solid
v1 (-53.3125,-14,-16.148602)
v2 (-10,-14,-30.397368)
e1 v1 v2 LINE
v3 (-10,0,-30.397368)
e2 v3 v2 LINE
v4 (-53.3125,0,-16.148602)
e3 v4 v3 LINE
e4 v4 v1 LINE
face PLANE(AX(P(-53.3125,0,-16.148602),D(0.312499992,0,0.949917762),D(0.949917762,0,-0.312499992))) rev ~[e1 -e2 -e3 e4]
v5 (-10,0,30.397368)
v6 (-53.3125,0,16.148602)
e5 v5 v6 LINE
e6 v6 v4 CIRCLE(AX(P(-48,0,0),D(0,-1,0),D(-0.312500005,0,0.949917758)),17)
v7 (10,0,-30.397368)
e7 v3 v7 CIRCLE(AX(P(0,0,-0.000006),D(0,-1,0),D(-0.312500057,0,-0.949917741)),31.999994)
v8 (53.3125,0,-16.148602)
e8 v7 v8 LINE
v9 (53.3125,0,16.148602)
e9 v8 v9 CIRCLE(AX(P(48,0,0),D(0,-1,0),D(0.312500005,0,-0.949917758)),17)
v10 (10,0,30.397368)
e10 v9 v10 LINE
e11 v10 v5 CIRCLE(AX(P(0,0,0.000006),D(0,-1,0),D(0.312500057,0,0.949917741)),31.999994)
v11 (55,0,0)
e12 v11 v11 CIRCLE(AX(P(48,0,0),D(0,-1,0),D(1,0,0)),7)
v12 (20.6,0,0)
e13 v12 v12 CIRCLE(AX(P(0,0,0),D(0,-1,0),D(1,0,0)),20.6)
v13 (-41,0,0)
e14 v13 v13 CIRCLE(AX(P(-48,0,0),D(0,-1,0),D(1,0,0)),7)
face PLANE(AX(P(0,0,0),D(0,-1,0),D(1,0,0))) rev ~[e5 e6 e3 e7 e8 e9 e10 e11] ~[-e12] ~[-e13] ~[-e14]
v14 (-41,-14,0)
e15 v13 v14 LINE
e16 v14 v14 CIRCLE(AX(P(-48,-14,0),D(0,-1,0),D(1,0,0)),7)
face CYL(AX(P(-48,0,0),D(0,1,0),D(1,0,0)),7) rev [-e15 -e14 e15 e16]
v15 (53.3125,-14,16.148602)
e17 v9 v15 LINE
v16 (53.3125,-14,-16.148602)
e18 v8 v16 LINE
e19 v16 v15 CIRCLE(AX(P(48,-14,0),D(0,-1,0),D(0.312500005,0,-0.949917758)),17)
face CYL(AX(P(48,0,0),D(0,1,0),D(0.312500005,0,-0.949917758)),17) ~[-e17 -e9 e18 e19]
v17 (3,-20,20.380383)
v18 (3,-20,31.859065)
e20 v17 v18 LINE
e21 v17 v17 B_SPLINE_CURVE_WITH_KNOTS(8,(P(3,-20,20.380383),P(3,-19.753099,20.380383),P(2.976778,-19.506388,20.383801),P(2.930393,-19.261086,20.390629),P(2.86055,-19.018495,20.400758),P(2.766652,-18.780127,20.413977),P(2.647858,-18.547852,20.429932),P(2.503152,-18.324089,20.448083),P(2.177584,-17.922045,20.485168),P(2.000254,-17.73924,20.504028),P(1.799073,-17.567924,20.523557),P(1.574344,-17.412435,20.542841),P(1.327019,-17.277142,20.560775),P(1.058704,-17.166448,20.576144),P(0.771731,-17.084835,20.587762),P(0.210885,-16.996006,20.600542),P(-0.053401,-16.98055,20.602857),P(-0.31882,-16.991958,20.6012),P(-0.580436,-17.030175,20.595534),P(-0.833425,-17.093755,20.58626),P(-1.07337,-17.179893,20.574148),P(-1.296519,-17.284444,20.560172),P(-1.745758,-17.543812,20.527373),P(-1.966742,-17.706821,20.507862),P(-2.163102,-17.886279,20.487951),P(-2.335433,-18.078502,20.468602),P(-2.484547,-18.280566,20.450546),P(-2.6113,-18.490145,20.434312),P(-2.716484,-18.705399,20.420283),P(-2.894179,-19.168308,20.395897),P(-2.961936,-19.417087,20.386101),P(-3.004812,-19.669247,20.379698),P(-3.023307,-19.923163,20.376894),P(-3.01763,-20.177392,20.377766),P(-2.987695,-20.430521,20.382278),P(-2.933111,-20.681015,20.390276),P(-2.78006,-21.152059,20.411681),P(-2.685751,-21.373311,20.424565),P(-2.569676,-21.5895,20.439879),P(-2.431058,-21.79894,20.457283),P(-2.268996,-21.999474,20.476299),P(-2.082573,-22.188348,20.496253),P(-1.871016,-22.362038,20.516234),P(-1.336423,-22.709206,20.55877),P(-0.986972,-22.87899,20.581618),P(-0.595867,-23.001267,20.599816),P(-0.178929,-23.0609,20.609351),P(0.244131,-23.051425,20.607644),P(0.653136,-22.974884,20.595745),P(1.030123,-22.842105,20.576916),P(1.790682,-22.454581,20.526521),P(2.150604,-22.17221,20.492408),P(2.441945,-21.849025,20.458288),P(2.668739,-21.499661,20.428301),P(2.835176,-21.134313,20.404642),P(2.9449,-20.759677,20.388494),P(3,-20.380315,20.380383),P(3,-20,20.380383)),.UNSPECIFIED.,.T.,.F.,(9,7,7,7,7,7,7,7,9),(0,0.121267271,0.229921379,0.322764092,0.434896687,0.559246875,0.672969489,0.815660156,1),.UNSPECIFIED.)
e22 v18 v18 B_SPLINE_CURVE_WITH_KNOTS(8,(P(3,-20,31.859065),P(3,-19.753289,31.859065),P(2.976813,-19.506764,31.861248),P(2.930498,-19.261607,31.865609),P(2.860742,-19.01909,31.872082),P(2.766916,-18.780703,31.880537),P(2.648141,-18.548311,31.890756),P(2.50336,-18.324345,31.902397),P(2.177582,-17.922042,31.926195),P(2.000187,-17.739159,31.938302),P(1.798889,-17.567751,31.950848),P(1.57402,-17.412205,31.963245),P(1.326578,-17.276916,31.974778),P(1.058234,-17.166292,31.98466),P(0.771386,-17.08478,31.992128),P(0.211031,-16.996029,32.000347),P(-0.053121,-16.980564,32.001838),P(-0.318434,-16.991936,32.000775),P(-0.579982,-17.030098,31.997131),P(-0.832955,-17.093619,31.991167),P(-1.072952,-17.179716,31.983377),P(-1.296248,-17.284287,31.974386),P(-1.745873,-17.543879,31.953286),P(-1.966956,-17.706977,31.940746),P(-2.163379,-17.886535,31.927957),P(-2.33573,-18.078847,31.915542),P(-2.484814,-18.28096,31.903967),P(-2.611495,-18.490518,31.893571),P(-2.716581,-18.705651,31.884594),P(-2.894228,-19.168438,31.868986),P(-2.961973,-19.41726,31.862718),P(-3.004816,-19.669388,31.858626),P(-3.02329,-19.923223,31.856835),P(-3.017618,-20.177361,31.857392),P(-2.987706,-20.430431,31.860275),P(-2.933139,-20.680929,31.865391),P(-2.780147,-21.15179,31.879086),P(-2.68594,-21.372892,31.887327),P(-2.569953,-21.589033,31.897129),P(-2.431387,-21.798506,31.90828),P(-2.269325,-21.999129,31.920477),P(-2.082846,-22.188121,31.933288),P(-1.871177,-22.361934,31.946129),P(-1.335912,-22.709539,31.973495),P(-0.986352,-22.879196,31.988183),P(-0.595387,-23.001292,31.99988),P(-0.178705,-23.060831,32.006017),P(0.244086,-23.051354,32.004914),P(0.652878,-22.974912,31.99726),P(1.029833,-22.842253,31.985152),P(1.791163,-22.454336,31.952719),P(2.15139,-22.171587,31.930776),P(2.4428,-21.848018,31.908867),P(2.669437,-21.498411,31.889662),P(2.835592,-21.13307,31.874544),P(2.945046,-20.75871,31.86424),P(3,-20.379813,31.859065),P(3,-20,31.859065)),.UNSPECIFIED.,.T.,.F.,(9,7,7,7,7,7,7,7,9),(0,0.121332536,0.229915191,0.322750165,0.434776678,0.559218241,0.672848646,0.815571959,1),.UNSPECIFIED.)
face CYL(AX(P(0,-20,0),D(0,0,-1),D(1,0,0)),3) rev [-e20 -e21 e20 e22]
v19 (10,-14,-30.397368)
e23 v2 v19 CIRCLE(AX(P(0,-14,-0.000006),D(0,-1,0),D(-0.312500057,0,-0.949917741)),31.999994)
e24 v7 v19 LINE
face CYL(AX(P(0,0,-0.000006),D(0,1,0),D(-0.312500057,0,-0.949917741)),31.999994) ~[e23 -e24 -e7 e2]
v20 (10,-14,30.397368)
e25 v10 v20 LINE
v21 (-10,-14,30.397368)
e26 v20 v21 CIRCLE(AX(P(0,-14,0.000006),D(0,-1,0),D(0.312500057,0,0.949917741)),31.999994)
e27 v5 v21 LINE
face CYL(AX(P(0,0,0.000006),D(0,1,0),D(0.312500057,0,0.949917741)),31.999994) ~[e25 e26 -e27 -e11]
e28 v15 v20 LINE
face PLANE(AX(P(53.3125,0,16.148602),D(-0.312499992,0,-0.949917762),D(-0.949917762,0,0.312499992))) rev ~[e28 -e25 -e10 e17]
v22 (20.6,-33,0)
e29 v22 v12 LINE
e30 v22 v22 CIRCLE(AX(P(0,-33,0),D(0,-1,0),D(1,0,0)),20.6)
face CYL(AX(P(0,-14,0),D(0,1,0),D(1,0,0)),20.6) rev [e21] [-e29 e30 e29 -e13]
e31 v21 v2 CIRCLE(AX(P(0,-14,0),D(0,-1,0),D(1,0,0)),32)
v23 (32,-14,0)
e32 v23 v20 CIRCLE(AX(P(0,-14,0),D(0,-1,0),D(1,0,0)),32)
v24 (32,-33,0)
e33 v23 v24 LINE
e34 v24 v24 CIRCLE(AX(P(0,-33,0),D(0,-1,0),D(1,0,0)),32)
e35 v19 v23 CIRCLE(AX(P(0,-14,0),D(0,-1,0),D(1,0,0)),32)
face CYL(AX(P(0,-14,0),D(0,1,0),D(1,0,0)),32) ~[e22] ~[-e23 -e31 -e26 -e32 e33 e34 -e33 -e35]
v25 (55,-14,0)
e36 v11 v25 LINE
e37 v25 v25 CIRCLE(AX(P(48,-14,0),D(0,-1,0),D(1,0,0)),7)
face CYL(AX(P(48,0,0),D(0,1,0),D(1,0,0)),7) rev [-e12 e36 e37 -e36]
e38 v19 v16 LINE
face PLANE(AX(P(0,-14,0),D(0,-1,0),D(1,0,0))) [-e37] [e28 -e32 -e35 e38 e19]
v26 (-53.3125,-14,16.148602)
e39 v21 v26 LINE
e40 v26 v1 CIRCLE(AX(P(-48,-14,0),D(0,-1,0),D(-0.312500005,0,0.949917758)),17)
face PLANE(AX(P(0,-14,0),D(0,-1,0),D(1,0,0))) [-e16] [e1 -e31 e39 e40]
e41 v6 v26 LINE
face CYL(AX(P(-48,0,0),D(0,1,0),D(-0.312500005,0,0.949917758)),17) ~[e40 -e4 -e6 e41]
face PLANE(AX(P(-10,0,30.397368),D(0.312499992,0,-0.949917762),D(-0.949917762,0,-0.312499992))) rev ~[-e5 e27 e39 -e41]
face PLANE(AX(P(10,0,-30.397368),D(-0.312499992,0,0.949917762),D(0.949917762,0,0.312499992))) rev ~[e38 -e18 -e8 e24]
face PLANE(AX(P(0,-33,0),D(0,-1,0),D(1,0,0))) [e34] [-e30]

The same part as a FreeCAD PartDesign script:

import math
import FreeCAD as App
import Part
import Sketcher
from FreeCAD import Vector

doc = App.newDocument("Part")
params = doc.addObject("Spreadsheet::Sheet", "Params")
for row, (alias, value) in enumerate([
    ("sketch1_diameter", "14 mm"),
    ("sketch1_radius", "17 mm"),
    ("sketch1_diameter2", "41.2 mm"),
    ("pad1_length", "14 mm"),
    ("sketch2_diameter", "64 mm"),
    ("sketch2_diameter2", "41.2 mm"),
    ("pad2_length", "19 mm"),
    ("sketch3_diameter", "6 mm"),
], start=1):
    params.set(f"A{row}", alias)
    params.set(f"B{row}", "=" + value)
    params.setAlias(f"B{row}", alias)

body = doc.addObject("PartDesign::Body", "Body")

sketch1 = doc.addObject("Sketcher::SketchObject", "Sketch")
body.addObject(sketch1)
sketch1.AttachmentSupport = (doc.XZ_Plane, [""])
sketch1.MapMode = "FlatFace"
sketch1.addGeometry([
    Part.LineSegment(Vector(-53.3125, -16.148602, 0), Vector(-10, -30.397368, 0)),
    Part.ArcOfCircle(Part.Circle(Vector(0, -0.000006, 0), Vector(0, 0, 1), 31.999994), math.radians(-108.20996), math.radians(-71.79004)),
    Part.LineSegment(Vector(10, -30.397368, 0), Vector(53.3125, -16.148602, 0)),
    Part.ArcOfCircle(Part.Circle(Vector(48, 0, 0), Vector(0, 0, 1), 17), math.radians(-71.790043), math.radians(71.790043)),
    Part.LineSegment(Vector(53.3125, 16.148602, 0), Vector(10, 30.397368, 0)),
    Part.ArcOfCircle(Part.Circle(Vector(0, 0.000006, 0), Vector(0, 0, 1), 31.999994), math.radians(71.79004), math.radians(108.20996)),
    Part.LineSegment(Vector(-10, 30.397368, 0), Vector(-53.3125, 16.148602, 0)),
    Part.ArcOfCircle(Part.Circle(Vector(-48, 0, 0), Vector(0, 0, 1), 17), math.radians(108.209957), math.radians(251.790043)),
    Part.Circle(Vector(-48, 0, 0), Vector(0, 0, 1), 7),
    Part.Circle(Vector(0, 0, 0), Vector(0, 0, 1), 20.6),
    Part.Circle(Vector(48, 0, 0), Vector(0, 0, 1), 7),
], False)
sketch1.addConstraint([
    Sketcher.Constraint("Tangent", 0, 2, 1, 1),
    Sketcher.Constraint("Tangent", 1, 2, 2, 1),
    Sketcher.Constraint("Tangent", 2, 2, 3, 1),
    Sketcher.Constraint("Tangent", 3, 2, 4, 1),
    Sketcher.Constraint("Tangent", 4, 2, 5, 1),
    Sketcher.Constraint("Tangent", 5, 2, 6, 1),
    Sketcher.Constraint("Tangent", 6, 2, 7, 1),
    Sketcher.Constraint("Tangent", 7, 2, 0, 1),
    Sketcher.Constraint("Coincident", 1, 3, -1, 1),
    Sketcher.Constraint("Coincident", 5, 3, -1, 1),
    Sketcher.Constraint("Coincident", 9, 3, -1, 1),
    Sketcher.Constraint("Coincident", 8, 3, 7, 3),
    Sketcher.Constraint("Coincident", 10, 3, 3, 3),
    Sketcher.Constraint("Equal", 1, 5),
    Sketcher.Constraint("Equal", 3, 7),
    Sketcher.Constraint("Equal", 8, 10),
    Sketcher.Constraint("Symmetric", 3, 3, 7, 3, -1, 1),
    Sketcher.Constraint("PointOnObject", 3, 3, -1),
    Sketcher.Constraint("Diameter", 8, 14.0),
    Sketcher.Constraint("Radius", 3, 17.0),
    Sketcher.Constraint("Diameter", 9, 41.2),
    Sketcher.Constraint("DistanceX", -1, 1, 3, 3, 48.0),
    Sketcher.Constraint("DistanceX", 0, 2, -1, 1, 10.0),
])
sketch1.setExpression("Constraints[18]", "Params.sketch1_diameter")
sketch1.setExpression("Constraints[19]", "Params.sketch1_radius")
sketch1.setExpression("Constraints[20]", "Params.sketch1_diameter2")
pad1 = doc.addObject("PartDesign::Pad", "Pad")
body.addObject(pad1)
pad1.Profile = sketch1
pad1.setExpression("Length", "Params.pad1_length")

sketch2 = doc.addObject("Sketcher::SketchObject", "Sketch001")
body.addObject(sketch2)
sketch2.AttachmentSupport = (doc.XZ_Plane, [""])
sketch2.MapMode = "FlatFace"
sketch2.AttachmentOffset = App.Placement(Vector(0, 0, 14), App.Rotation())
sketch2.addGeometry([
    Part.Circle(Vector(0, 0, 0), Vector(0, 0, 1), 32),
    Part.Circle(Vector(0, 0, 0), Vector(0, 0, 1), 20.6),
], False)
sketch2.addConstraint([
    Sketcher.Constraint("Coincident", 0, 3, -1, 1),
    Sketcher.Constraint("Coincident", 1, 3, -1, 1),
    Sketcher.Constraint("Diameter", 0, 64.0),
    Sketcher.Constraint("Diameter", 1, 41.2),
])
sketch2.setExpression("Constraints[2]", "Params.sketch2_diameter")
sketch2.setExpression("Constraints[3]", "Params.sketch2_diameter2")
pad2 = doc.addObject("PartDesign::Pad", "Pad001")
body.addObject(pad2)
pad2.Profile = sketch2
pad2.setExpression("Length", "Params.pad2_length")

sketch3 = doc.addObject("Sketcher::SketchObject", "Sketch002")
body.addObject(sketch3)
sketch3.AttachmentSupport = (doc.XY_Plane, [""])
sketch3.MapMode = "FlatFace"
sketch3.addGeometry(Part.Circle(Vector(0, -20, 0), Vector(0, 0, 1), 3), False)
sketch3.addConstraint([
    Sketcher.Constraint("PointOnObject", 0, 3, -2),
    Sketcher.Constraint("Diameter", 0, 6.0),
    Sketcher.Constraint("DistanceY", 0, 3, -1, 1, 20.0),
])
sketch3.setExpression("Constraints[1]", "Params.sketch3_diameter")
pocket1 = doc.addObject("PartDesign::Pocket", "Pocket")
body.addObject(pocket1)
pocket1.Profile = sketch3
pocket1.Type = "ThroughAll"
pocket1.Reversed = True

doc.recompute()
